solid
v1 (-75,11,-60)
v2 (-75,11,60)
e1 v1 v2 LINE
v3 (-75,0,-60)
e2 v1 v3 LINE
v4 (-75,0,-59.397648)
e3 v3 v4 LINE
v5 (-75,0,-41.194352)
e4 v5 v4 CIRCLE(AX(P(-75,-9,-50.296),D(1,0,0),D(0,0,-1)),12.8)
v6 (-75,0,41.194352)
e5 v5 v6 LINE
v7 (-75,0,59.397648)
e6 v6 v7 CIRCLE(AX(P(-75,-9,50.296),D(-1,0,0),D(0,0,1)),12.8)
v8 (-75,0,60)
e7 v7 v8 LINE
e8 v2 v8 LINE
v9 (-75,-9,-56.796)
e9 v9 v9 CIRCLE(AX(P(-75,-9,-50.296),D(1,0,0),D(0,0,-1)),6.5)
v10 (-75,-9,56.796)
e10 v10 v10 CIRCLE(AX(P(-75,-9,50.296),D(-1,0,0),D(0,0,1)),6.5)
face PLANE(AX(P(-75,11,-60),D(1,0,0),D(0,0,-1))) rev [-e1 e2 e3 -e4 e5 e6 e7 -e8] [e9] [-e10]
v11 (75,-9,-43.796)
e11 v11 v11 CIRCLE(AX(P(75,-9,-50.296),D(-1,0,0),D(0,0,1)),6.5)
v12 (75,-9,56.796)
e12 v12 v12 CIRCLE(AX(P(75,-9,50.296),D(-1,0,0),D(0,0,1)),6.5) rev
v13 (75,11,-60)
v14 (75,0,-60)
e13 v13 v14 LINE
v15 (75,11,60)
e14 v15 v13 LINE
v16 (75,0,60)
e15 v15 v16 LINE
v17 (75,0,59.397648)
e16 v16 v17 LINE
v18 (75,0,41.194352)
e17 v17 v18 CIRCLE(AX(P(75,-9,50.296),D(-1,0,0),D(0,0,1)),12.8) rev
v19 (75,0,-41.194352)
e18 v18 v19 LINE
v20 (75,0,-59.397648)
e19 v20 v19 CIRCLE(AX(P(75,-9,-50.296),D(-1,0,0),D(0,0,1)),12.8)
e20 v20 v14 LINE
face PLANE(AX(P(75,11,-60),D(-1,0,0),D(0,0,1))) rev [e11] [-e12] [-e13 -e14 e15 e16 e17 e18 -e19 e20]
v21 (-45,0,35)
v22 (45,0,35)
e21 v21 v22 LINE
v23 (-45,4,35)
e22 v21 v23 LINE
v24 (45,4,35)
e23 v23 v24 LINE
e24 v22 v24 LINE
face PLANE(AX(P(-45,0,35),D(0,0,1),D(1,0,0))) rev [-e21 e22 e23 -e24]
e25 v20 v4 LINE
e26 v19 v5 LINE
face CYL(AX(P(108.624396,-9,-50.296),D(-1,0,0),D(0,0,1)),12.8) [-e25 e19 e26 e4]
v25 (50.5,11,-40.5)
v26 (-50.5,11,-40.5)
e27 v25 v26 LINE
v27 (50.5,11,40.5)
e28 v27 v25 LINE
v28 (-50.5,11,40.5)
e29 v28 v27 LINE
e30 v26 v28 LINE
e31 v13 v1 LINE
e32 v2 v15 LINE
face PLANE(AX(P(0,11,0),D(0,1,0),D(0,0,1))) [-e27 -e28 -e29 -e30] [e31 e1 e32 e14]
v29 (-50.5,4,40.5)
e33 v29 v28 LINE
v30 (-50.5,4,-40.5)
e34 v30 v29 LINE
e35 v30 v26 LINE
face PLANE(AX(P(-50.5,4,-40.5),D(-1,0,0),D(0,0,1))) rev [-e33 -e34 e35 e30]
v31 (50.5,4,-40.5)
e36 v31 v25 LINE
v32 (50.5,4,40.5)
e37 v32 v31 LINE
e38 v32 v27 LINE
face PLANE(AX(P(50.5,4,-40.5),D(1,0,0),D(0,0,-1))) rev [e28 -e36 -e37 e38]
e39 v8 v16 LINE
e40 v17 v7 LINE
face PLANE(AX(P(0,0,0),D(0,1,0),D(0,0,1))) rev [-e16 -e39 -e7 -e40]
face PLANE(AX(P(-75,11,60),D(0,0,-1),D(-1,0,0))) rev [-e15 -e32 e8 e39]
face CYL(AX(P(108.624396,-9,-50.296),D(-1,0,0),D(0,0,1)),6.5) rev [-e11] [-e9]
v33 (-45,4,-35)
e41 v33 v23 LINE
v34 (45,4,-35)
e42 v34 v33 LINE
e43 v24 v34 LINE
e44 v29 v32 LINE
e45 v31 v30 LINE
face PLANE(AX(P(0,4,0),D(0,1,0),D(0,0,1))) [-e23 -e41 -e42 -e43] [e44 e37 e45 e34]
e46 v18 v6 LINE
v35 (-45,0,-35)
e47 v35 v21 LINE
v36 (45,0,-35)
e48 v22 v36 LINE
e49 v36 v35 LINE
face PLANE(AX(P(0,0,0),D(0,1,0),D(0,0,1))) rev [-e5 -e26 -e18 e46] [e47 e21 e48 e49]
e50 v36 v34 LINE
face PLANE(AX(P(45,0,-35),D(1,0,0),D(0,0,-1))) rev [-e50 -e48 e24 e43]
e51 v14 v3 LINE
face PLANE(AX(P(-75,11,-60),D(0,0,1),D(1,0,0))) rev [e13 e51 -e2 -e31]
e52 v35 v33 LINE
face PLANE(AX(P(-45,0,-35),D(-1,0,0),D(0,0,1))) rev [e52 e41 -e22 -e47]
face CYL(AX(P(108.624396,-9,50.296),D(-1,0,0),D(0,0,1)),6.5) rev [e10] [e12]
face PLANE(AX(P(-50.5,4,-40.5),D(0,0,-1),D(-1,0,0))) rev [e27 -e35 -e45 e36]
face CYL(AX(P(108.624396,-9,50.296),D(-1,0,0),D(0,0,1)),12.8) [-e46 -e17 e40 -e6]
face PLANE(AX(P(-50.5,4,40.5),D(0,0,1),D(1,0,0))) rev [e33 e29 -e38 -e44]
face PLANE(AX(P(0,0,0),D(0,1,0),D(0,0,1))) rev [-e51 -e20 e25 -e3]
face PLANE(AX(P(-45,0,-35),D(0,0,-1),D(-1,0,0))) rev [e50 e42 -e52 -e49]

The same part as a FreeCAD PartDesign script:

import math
import FreeCAD as App
import Part
import Sketcher
from FreeCAD import Vector
Q = App.Units.Quantity


def add_polygon(sketch, points):
    """Adds a closed chain of lines whose ends are joined by coincident constraints."""
    first, n = sketch.GeometryCount, len(points)
    for a, b in zip(points, points[1:] + points[:1]):
        sketch.addGeometry(Part.LineSegment(App.Vector(*a, 0), App.Vector(*b, 0)), False)
    for i in range(n):
        sketch.addConstraint(Sketcher.Constraint("Coincident", first + i, 2, first + (i + 1) % n, 1))

doc = App.newDocument("Part")
body = doc.addObject("PartDesign::Body", "Body")

# Sketch on XZ plane
sketch1 = doc.addObject("Sketcher::SketchObject", "Sketch")
body.addObject(sketch1)
sketch1.AttachmentSupport = (doc.XZ_Plane, [""])
sketch1.MapMode = "FlatFace"
add_polygon(sketch1, [(-75, -60), (-75, 60), (75, 60), (75, -60)])  # lines 0-3
sketch1.addConstraint([
    Sketcher.Constraint("Vertical", 0),
    Sketcher.Constraint("Horizontal", 1),
    Sketcher.Constraint("Vertical", 2),
    Sketcher.Constraint("Horizontal", 3),
    Sketcher.Constraint("Symmetric", 0, 2, 2, 2, -1, 1),
    Sketcher.Constraint("DistanceX", 1, 1, 1, 2, Q("150 mm")),
    Sketcher.Constraint("DistanceY", 0, 1, 0, 2, Q("120 mm")),
])
pad1 = doc.addObject("PartDesign::Pad", "Pad")
body.addObject(pad1)
pad1.Profile = sketch1
pad1.Length = 11
pad1.Reversed = True

# Sketch on XZ plane
sketch2 = doc.addObject("Sketcher::SketchObject", "Sketch001")
body.addObject(sketch2)
sketch2.AttachmentSupport = (doc.XZ_Plane, [""])
sketch2.MapMode = "FlatFace"
sketch2.AttachmentOffset = App.Placement(Vector(0, 0, -11), App.Rotation())
add_polygon(sketch2, [(-50, -40), (-50, 40), (50, 40), (50, -40)])  # lines 0-3
sketch2.addConstraint([
    Sketcher.Constraint("Vertical", 0),
    Sketcher.Constraint("Horizontal", 1),
    Sketcher.Constraint("Vertical", 2),
    Sketcher.Constraint("Horizontal", 3),
    Sketcher.Constraint("Symmetric", 0, 2, 2, 2, -1, 1),
    Sketcher.Constraint("DistanceX", 1, 1, 1, 2, Q("101 mm")),
    Sketcher.Constraint("DistanceY", 0, 1, 0, 2, Q("81 mm")),
])
pocket1 = doc.addObject("PartDesign::Pocket", "Pocket")
body.addObject(pocket1)
pocket1.Profile = sketch2
pocket1.Length = 7
pocket1.Reversed = True

# Sketch on XZ plane
sketch3 = doc.addObject("Sketcher::SketchObject", "Sketch002")
body.addObject(sketch3)
sketch3.AttachmentSupport = (doc.XZ_Plane, [""])
sketch3.MapMode = "FlatFace"
sketch3.AttachmentOffset = App.Placement(Vector(0, 0, -4), App.Rotation())
add_polygon(sketch3, [(-45, -35), (-45, 35), (45, 35), (45, -35)])  # lines 0-3
sketch3.addConstraint([
    Sketcher.Constraint("Vertical", 0),
    Sketcher.Constraint("Horizontal", 1),
    Sketcher.Constraint("Vertical", 2),
    Sketcher.Constraint("Horizontal", 3),
    Sketcher.Constraint("Symmetric", 0, 2, 2, 2, -1, 1),
    Sketcher.Constraint("DistanceX", 1, 1, 1, 2, Q("90 mm")),
    Sketcher.Constraint("DistanceY", 0, 1, 0, 2, Q("70 mm")),
])
pocket2 = doc.addObject("PartDesign::Pocket", "Pocket001")
body.addObject(pocket2)
pocket2.Profile = sketch3
pocket2.Type = "ThroughAll"
pocket2.Reversed = True

# Sketch on YZ plane
sketch4 = doc.addObject("Sketcher::SketchObject", "Sketch003")
body.addObject(sketch4)
sketch4.AttachmentSupport = (doc.YZ_Plane, [""])
sketch4.MapMode = "FlatFace"
sketch4.AttachmentOffset = App.Placement(Vector(0, 0, -75), App.Rotation())
sketch4.addGeometry([
    Part.LineSegment(Vector(0, 59, 0), Vector(0, 41, 0)),
    Part.ArcOfCircle(Part.Circle(Vector(-9, 50, 0), Vector(0, 0, 1), 13), math.radians(45), math.radians(315)),
    Part.Circle(Vector(-9, 50, 0), Vector(0, 0, 1), 6),
], False)
sketch4.addConstraint([
    Sketcher.Constraint("Coincident", 0, 1, 1, 1),
    Sketcher.Constraint("Coincident", 1, 2, 0, 2),
    Sketcher.Constraint("Vertical", 0),
    Sketcher.Constraint("Coincident", 2, 3, 1, 3),
    Sketcher.Constraint("PointOnObject", 0, 1, -2),
    Sketcher.Constraint("Diameter", 2, Q("13 mm")),
    Sketcher.Constraint("Radius", 1, Q("12.8 mm")),
    Sketcher.Constraint("DistanceX", 1, 3, -1, 1, Q("9 mm")),
    Sketcher.Constraint("DistanceY", -1, 1, 1, 3, Q("50.296 mm")),
])
pad2 = doc.addObject("PartDesign::Pad", "Pad001")
body.addObject(pad2)
pad2.Profile = sketch4
pad2.Length = 150
doc.recompute()

mirrored = doc.addObject("PartDesign::Mirrored", "Mirrored")
body.addObject(mirrored)
mirrored.Originals = [pad2]
mirrored.MirrorPlane = (doc.XY_Plane, [""])
body.Tip = mirrored

doc.recompute()
